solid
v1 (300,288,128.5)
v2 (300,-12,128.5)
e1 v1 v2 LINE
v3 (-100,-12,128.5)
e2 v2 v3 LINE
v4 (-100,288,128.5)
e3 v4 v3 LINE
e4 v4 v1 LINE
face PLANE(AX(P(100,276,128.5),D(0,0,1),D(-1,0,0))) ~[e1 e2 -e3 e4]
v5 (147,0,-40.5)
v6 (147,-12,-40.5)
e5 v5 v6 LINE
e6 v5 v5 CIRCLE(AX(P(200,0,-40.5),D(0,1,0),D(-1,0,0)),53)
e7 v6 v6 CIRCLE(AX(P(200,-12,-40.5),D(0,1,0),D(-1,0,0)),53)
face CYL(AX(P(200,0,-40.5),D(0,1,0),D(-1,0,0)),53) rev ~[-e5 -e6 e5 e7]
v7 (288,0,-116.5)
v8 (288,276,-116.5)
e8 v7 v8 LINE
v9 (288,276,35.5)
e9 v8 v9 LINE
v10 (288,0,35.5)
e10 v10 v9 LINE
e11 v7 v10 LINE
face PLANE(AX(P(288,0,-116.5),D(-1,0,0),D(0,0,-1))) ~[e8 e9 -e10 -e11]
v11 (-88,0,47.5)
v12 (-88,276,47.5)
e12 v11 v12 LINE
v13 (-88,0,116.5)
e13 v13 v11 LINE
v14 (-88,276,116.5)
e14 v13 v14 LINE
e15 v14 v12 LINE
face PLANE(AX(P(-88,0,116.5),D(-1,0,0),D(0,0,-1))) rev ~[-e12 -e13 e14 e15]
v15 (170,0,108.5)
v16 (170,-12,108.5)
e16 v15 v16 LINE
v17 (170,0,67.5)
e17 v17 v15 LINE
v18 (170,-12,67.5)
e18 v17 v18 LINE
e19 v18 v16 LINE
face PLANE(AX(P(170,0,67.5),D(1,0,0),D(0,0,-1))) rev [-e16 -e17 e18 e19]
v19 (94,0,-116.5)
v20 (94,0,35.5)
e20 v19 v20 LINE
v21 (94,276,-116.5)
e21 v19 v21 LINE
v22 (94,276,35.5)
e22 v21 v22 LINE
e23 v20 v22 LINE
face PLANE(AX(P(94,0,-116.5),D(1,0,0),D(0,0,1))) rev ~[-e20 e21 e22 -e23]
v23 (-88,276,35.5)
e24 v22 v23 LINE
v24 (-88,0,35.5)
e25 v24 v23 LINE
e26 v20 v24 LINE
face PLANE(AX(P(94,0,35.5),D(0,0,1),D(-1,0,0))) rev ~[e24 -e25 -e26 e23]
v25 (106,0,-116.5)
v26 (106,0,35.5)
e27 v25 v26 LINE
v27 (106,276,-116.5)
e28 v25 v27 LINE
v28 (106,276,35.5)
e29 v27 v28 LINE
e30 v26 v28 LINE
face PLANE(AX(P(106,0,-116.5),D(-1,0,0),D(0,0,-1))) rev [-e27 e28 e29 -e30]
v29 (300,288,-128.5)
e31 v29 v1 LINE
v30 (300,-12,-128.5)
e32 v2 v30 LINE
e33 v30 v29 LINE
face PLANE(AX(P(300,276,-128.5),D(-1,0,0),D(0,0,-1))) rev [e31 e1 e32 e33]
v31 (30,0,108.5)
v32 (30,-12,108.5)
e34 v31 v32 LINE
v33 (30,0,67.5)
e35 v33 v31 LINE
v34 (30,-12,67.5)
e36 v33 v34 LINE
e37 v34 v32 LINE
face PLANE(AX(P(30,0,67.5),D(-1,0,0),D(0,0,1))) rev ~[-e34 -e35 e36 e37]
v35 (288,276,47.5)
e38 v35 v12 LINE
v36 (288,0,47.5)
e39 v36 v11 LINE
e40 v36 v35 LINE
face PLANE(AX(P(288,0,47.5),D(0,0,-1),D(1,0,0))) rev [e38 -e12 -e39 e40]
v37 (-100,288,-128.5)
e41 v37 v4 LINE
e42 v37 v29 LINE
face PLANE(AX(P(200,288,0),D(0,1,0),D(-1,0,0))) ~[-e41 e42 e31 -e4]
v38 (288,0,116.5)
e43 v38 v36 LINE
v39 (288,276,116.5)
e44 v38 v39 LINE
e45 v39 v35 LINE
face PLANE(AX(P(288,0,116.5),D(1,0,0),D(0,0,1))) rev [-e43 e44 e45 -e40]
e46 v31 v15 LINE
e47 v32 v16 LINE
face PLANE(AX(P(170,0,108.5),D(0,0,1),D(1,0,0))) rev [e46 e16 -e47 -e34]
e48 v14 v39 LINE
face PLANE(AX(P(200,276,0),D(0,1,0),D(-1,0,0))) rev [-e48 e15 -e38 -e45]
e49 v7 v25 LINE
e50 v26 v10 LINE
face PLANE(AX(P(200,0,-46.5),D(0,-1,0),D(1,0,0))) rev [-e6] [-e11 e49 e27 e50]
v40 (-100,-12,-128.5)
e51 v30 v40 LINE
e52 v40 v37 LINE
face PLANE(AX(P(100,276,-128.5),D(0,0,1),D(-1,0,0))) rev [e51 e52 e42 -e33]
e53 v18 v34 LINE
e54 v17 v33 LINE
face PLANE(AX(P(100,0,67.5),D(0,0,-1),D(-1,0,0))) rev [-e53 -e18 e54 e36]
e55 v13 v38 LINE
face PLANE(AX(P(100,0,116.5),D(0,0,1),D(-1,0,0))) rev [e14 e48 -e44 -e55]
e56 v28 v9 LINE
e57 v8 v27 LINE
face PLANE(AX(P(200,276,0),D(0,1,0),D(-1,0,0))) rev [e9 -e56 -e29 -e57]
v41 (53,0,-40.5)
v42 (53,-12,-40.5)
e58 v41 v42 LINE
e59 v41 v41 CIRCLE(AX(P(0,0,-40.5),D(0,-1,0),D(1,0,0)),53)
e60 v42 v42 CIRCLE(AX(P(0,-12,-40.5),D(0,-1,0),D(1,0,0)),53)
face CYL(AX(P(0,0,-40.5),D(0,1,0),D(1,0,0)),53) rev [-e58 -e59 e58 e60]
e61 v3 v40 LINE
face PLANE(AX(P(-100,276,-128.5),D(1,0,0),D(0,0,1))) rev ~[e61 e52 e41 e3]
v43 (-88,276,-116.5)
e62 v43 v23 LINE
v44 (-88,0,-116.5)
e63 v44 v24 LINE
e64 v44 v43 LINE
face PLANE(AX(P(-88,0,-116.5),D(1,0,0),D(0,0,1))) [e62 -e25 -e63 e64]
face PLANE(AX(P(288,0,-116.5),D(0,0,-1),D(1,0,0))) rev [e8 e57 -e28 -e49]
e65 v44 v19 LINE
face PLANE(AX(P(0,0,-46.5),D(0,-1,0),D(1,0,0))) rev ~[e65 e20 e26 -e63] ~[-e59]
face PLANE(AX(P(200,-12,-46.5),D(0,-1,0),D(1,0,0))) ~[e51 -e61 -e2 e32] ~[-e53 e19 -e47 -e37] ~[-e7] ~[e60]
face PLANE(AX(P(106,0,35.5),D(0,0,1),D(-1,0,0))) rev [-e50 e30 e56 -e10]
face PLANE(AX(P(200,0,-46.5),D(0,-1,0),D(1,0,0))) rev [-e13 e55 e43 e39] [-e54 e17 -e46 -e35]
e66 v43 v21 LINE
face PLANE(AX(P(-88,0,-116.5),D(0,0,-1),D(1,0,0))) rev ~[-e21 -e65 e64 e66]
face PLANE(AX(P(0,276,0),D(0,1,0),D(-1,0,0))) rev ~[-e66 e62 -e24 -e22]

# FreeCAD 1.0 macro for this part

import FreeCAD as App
import Part
import Sketcher
from FreeCAD import Vector

doc = App.newDocument("Part")
body = doc.addObject("PartDesign::Body", "Body")

sketch1 = body.newObject("Sketcher::SketchObject", "Sketch")
sketch1.AttachmentSupport = (doc.getObject("XZ_Plane"), [""])
sketch1.MapMode = "FlatFace"
sketch1.addGeometry([
    Part.LineSegment(Vector(-100, -128, 0), Vector(100, -128, 0)),
    Part.LineSegment(Vector(100, -128, 0), Vector(100, 68, 0)),
    Part.LineSegment(Vector(100, 68, 0), Vector(30, 68, 0)),
    Part.LineSegment(Vector(30, 68, 0), Vector(30, 108, 0)),
    Part.LineSegment(Vector(30, 108, 0), Vector(100, 108, 0)),
    Part.LineSegment(Vector(100, 108, 0), Vector(100, 128, 0)),
    Part.LineSegment(Vector(100, 128, 0), Vector(-100, 128, 0)),
    Part.LineSegment(Vector(-100, 128, 0), Vector(-100, -128, 0)),
    Part.Circle(Vector(0, -40, 0), Vector(0, 0, 1), 53),
], False)
sketch1.addConstraint([
    Sketcher.Constraint("Coincident", 0, 2, 1, 1),
    Sketcher.Constraint("Coincident", 1, 2, 2, 1),
    Sketcher.Constraint("Coincident", 2, 2, 3, 1),
    Sketcher.Constraint("Coincident", 3, 2, 4, 1),
    Sketcher.Constraint("Coincident", 4, 2, 5, 1),
    Sketcher.Constraint("Coincident", 5, 2, 6, 1),
    Sketcher.Constraint("Coincident", 6, 2, 7, 1),
    Sketcher.Constraint("Coincident", 7, 2, 0, 1),
    Sketcher.Constraint("Horizontal", 0),
    Sketcher.Constraint("Vertical", 1),
    Sketcher.Constraint("Horizontal", 2),
    Sketcher.Constraint("Vertical", 3),
    Sketcher.Constraint("Horizontal", 4),
    Sketcher.Constraint("Vertical", 5),
    Sketcher.Constraint("Horizontal", 6),
    Sketcher.Constraint("Vertical", 7),
    Sketcher.Constraint("Symmetric", 0, 2, 6, 2, -1, 1),
    Sketcher.Constraint("PointOnObject", 8, 3, -2),
    Sketcher.Constraint("Vertical", 1, 2, 4, 2),
    Sketcher.Constraint("Diameter", 8, 106.0),
    Sketcher.Constraint("DistanceX", 0, 1, 0, 2, 200.0),
    Sketcher.Constraint("DistanceX", 2, 2, 2, 1, 70.0),
    Sketcher.Constraint("DistanceY", 1, 1, 1, 2, 196.0),
    Sketcher.Constraint("DistanceY", 3, 1, 3, 2, 41.0),
    Sketcher.Constraint("DistanceY", 5, 1, 5, 2, 20.0),
    Sketcher.Constraint("DistanceY", 0, 2, 8, 3, 88.0),
])
pad1 = body.newObject("PartDesign::Pad", "Pad")
pad1.Profile = sketch1
pad1.Length = 12

sketch2 = body.newObject("Sketcher::SketchObject", "Sketch001")
sketch2.AttachmentSupport = (doc.getObject("XZ_Plane"), [""])
sketch2.MapMode = "FlatFace"
sketch2.addGeometry([
    Part.LineSegment(Vector(-100, 128, 0), Vector(100, 128, 0)),
    Part.LineSegment(Vector(100, 128, 0), Vector(100, 116, 0)),
    Part.LineSegment(Vector(100, 116, 0), Vector(-88, 116, 0)),
    Part.LineSegment(Vector(-88, 116, 0), Vector(-88, 48, 0)),
    Part.LineSegment(Vector(-88, 48, 0), Vector(100, 48, 0)),
    Part.LineSegment(Vector(100, 48, 0), Vector(100, -128, 0)),
    Part.LineSegment(Vector(100, -128, 0), Vector(-100, -128, 0)),
    Part.LineSegment(Vector(-100, -128, 0), Vector(-100, 128, 0)),
    Part.LineSegment(Vector(94, 36, 0), Vector(-88, 36, 0)),
    Part.LineSegment(Vector(-88, 36, 0), Vector(-88, -116, 0)),
    Part.LineSegment(Vector(-88, -116, 0), Vector(94, -116, 0)),
    Part.LineSegment(Vector(94, -116, 0), Vector(94, 36, 0)),
], False)
sketch2.addConstraint([
    Sketcher.Constraint("Coincident", 0, 2, 1, 1),
    Sketcher.Constraint("Coincident", 1, 2, 2, 1),
    Sketcher.Constraint("Coincident", 2, 2, 3, 1),
    Sketcher.Constraint("Coincident", 3, 2, 4, 1),
    Sketcher.Constraint("Coincident", 4, 2, 5, 1),
    Sketcher.Constraint("Coincident", 5, 2, 6, 1),
    Sketcher.Constraint("Coincident", 6, 2, 7, 1),
    Sketcher.Constraint("Coincident", 7, 2, 0, 1),
    Sketcher.Constraint("Coincident", 8, 2, 9, 1),
    Sketcher.Constraint("Coincident", 9, 2, 10, 1),
    Sketcher.Constraint("Coincident", 10, 2, 11, 1),
    Sketcher.Constraint("Coincident", 11, 2, 8, 1),
    Sketcher.Constraint("Horizontal", 0),
    Sketcher.Constraint("Vertical", 1),
    Sketcher.Constraint("Horizontal", 2),
    Sketcher.Constraint("Vertical", 3),
    Sketcher.Constraint("Horizontal", 4),
    Sketcher.Constraint("Vertical", 5),
    Sketcher.Constraint("Horizontal", 6),
    Sketcher.Constraint("Vertical", 7),
    Sketcher.Constraint("Horizontal", 8),
    Sketcher.Constraint("Vertical", 9),
    Sketcher.Constraint("Horizontal", 10),
    Sketcher.Constraint("Vertical", 11),
    Sketcher.Constraint("Symmetric", 0, 2, 6, 2, -1, 1),
    Sketcher.Constraint("Symmetric", 2, 2, 9, 2, -1),
    Sketcher.Constraint("Vertical", 1, 2, 4, 2),
    Sketcher.Constraint("DistanceX", 0, 1, 0, 2, 200.0),
    Sketcher.Constraint("DistanceX", 2, 2, 2, 1, 188.0),
    Sketcher.Constraint("DistanceX", 8, 2, 8, 1, 182.0),
    Sketcher.Constraint("DistanceY", 1, 2, 1, 1, 12.0),
    Sketcher.Constraint("DistanceY", 3, 2, 3, 1, 69.0),
    Sketcher.Constraint("DistanceY", 5, 2, 5, 1, 176.0),
    Sketcher.Constraint("DistanceY", 9, 2, 9, 1, 152.0),
])
pad2 = body.newObject("PartDesign::Pad", "Pad001")
pad2.Profile = sketch2
pad2.Length = 276
pad2.Reversed = True

sketch3 = body.newObject("Sketcher::SketchObject", "Sketch002")
sketch3.AttachmentSupport = (doc.getObject("XZ_Plane"), [""])
sketch3.MapMode = "FlatFace"
sketch3.AttachmentOffset = App.Placement(Vector(0, 0, -276), App.Rotation())
sketch3.addGeometry([
    Part.LineSegment(Vector(100, 128, 0), Vector(100, -128, 0)),
    Part.LineSegment(Vector(100, -128, 0), Vector(-100, -128, 0)),
    Part.LineSegment(Vector(-100, -128, 0), Vector(-100, 128, 0)),
    Part.LineSegment(Vector(-100, 128, 0), Vector(100, 128, 0)),
], False)
sketch3.addConstraint([
    Sketcher.Constraint("Coincident", 0, 2, 1, 1),
    Sketcher.Constraint("Coincident", 1, 2, 2, 1),
    Sketcher.Constraint("Coincident", 2, 2, 3, 1),
    Sketcher.Constraint("Coincident", 3, 2, 0, 1),
    Sketcher.Constraint("Vertical", 0),
    Sketcher.Constraint("Horizontal", 1),
    Sketcher.Constraint("Vertical", 2),
    Sketcher.Constraint("Horizontal", 3),
    Sketcher.Constraint("Symmetric", 0, 2, 2, 2, -1, 1),
    Sketcher.Constraint("DistanceX", 1, 2, 1, 1, 200.0),
    Sketcher.Constraint("DistanceY", 0, 2, 0, 1, 257.0),
])
pad3 = body.newObject("PartDesign::Pad", "Pad002")
pad3.Profile = sketch3
pad3.Length = 12
pad3.Reversed = True
body2 = doc.addObject("PartDesign::Body", "Body001")
doc.recompute()

body2.BaseFeature = body
doc.recompute()

mirroring = doc.addObject("Part::Mirroring", "Mirroring")
mirroring.Source = body
mirroring.Base = Vector(100, 139.230769, -27.880342)
mirroring.Normal = Vector(1, 0, 0)
body3 = doc.addObject("PartDesign::Body", "Body002")
body3.BaseFeature = mirroring
boolean = body2.newObject("PartDesign::Boolean", "Boolean")
boolean.Type = "Fuse"
boolean.addObjects([body3])
doc.recompute()
mirroring.Visibility = False

doc.recompute()
